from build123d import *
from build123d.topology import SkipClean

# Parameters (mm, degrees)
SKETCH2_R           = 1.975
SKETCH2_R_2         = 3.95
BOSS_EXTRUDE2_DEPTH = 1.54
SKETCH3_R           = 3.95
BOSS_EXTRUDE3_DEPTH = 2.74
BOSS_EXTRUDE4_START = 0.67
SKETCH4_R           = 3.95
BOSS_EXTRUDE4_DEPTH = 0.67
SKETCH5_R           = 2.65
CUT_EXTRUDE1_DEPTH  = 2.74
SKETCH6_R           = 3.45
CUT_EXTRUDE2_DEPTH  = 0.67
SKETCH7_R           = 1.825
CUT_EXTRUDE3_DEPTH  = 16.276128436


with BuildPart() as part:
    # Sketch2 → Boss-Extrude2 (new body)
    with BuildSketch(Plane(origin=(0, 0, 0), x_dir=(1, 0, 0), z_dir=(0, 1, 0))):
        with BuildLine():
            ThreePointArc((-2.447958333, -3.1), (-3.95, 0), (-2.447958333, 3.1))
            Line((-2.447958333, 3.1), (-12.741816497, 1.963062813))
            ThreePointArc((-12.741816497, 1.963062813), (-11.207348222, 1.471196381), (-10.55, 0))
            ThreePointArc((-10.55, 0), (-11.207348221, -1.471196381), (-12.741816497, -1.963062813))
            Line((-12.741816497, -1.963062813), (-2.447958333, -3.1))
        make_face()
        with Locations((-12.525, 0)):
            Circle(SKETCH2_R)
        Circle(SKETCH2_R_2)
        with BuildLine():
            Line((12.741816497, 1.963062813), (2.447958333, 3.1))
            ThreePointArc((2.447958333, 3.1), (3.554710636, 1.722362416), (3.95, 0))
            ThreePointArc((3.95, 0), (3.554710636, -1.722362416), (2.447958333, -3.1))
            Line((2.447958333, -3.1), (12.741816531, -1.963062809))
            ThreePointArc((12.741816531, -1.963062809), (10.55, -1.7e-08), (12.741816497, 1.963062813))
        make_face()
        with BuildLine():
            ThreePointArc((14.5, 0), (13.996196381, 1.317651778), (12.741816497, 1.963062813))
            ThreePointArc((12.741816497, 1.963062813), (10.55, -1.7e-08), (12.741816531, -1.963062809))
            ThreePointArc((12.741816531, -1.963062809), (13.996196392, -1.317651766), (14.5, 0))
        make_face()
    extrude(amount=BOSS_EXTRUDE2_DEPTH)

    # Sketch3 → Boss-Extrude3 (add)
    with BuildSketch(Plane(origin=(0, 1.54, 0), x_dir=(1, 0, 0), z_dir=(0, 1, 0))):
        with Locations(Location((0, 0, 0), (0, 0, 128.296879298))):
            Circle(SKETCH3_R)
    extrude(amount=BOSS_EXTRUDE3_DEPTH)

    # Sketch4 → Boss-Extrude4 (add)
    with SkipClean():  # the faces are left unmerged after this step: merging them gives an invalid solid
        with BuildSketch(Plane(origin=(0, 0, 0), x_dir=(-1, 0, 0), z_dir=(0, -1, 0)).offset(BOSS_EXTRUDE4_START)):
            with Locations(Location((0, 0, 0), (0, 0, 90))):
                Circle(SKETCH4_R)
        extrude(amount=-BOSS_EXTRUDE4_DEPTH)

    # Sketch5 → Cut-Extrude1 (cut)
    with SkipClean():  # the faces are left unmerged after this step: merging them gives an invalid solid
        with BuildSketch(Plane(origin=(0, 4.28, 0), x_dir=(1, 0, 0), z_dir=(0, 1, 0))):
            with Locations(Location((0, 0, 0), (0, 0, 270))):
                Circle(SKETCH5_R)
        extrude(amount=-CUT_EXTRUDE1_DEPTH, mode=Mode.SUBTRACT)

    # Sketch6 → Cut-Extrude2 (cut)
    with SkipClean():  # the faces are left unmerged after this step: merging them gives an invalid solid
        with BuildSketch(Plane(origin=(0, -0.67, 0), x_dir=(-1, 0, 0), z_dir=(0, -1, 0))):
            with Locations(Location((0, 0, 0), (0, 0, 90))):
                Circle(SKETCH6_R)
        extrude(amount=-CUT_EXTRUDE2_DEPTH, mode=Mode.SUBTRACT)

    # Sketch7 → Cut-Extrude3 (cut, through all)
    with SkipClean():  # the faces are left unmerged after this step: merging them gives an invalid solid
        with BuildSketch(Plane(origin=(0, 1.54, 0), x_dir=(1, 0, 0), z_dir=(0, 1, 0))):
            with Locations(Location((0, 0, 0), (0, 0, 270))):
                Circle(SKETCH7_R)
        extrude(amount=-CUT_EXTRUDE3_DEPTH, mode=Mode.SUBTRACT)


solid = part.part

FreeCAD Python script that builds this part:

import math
import FreeCAD as App
import Part
import Sketcher

V = App.Vector

doc = App.newDocument("Part")
params = doc.addObject("Spreadsheet::Sheet", "Params")
for row, (alias, value) in enumerate([
    ("sketch1_radius", "3.95 mm"),
    ("pad1_length", "1.54 mm"),
    ("sketch2_diameter", "7.9 mm"),
    ("pad2_length", "2.74 mm"),
    ("sketch3_diameter", "7.9 mm"),
    ("pad3_length", "0.67 mm"),
    ("sketch4_diameter", "5.3 mm"),
    ("pocket1_length", "2.74 mm"),
    ("sketch5_diameter", "6.9 mm"),
    ("pocket2_length", "0.67 mm"),
    ("sketch6_diameter", "3.65 mm"),
], start=1):
    params.set(f"A{row}", alias)
    params.set(f"B{row}", "=" + value)
    params.setAlias(f"B{row}", alias)

body = doc.addObject("PartDesign::Body", "Body")

sketch1 = body.newObject("Sketcher::SketchObject", "Sketch")
sketch1.AttachmentSupport = (doc.getObject("XZ_Plane"), [""])
sketch1.MapMode = "FlatFace"
sketch1.addGeometry([
    Part.LineSegment(V(-2.4, -3.1, 0), V(-12.7, -2, 0)),
    Part.ArcOfCircle(Part.Circle(V(-12.5, 0, 0), V(0, 0, 1), 2), math.radians(96), math.radians(264)),
    Part.LineSegment(V(-12.7, 2, 0), V(-2.4, 3.1, 0)),
    Part.ArcOfCircle(Part.Circle(V(0, 0, 0), V(0, 0, 1), 4), math.radians(52), math.radians(128)),
    Part.LineSegment(V(2.4, 3.1, 0), V(12.7, 2, 0)),
    Part.ArcOfCircle(Part.Circle(V(12.5, 0, 0), V(0, 0, 1), 2), math.radians(0), math.radians(84)),
    Part.ArcOfCircle(Part.Circle(V(12.5, 0, 0), V(0, 0, 1), 2), math.radians(-84), math.radians(0)),
    Part.LineSegment(V(12.7, -2, 0), V(2.4, -3.1, 0)),
    Part.ArcOfCircle(Part.Circle(V(0, 0, 0), V(0, 0, 1), 4), math.radians(-128), math.radians(-52)),
], False)
sketch1.addConstraint([
    Sketcher.Constraint("Tangent", 0, 2, 1, 2),
    Sketcher.Constraint("Tangent", 1, 1, 2, 1),
    Sketcher.Constraint("Coincident", 2, 2, 3, 2),
    Sketcher.Constraint("Coincident", 3, 1, 4, 1),
    Sketcher.Constraint("Tangent", 4, 2, 5, 2),
    Sketcher.Constraint("Tangent", 5, 1, 6, 2),
    Sketcher.Constraint("Tangent", 6, 1, 7, 1),
    Sketcher.Constraint("Coincident", 7, 2, 8, 2),
    Sketcher.Constraint("Coincident", 8, 1, 0, 1),
    Sketcher.Constraint("Coincident", 3, 3, -1, 1),
    Sketcher.Constraint("Coincident", 8, 3, -1, 1),
    Sketcher.Constraint("Equal", 1, 5),
    Sketcher.Constraint("Equal", 5, 6),
    Sketcher.Constraint("Equal", 3, 8),
    Sketcher.Constraint("Symmetric", 1, 3, 5, 3, -1, 1),
    Sketcher.Constraint("Symmetric", 1, 1, 4, 2, -2),
    Sketcher.Constraint("PointOnObject", 5, 1, -1),
    Sketcher.Constraint("Parallel", 0, 4),
    Sketcher.Constraint("Parallel", 2, 7),
    Sketcher.Constraint("Radius", 3, 3.95),
    Sketcher.Constraint("Radius", 1, 1.975),
    Sketcher.Constraint("DistanceY", -1, 1, 2, 2, 3.1),
    Sketcher.Constraint("DistanceX", -1, 1, 5, 1, 14.5),
])
sketch1.setExpression("Constraints[19]", "Params.sketch1_radius")
pad1 = body.newObject("PartDesign::Pad", "Pad")
pad1.Profile = sketch1
pad1.setExpression("Length", "Params.pad1_length")
pad1.Reversed = True

sketch2 = body.newObject("Sketcher::SketchObject", "Sketch001")
sketch2.AttachmentSupport = (doc.getObject("XZ_Plane"), [""])
sketch2.MapMode = "FlatFace"
sketch2.AttachmentOffset = App.Placement(V(0, 0, -1.54), App.Rotation())
sketch2.addGeometry(Part.Circle(V(0, 0, 0), V(0, 0, 1), 4), False)
sketch2.addConstraint([
    Sketcher.Constraint("Coincident", 0, 3, -1, 1),
    Sketcher.Constraint("Diameter", 0, 7.9),
])
sketch2.setExpression("Constraints[1]", "Params.sketch2_diameter")
pad2 = body.newObject("PartDesign::Pad", "Pad001")
pad2.Profile = sketch2
pad2.setExpression("Length", "Params.pad2_length")
pad2.Reversed = True

sketch3 = body.newObject("Sketcher::SketchObject", "Sketch002")
sketch3.AttachmentSupport = (doc.getObject("XZ_Plane"), [""])
sketch3.MapMode = "FlatFace"
sketch3.AttachmentOffset = App.Placement(V(0, 0, 0.67), App.Rotation())
sketch3.addGeometry(Part.Circle(V(0, 0, 0), V(0, 0, 1), 4), False)
sketch3.addConstraint([
    Sketcher.Constraint("Coincident", 0, 3, -1, 1),
    Sketcher.Constraint("Diameter", 0, 7.9),
])
sketch3.setExpression("Constraints[1]", "Params.sketch3_diameter")
pad3 = body.newObject("PartDesign::Pad", "Pad002")
pad3.Profile = sketch3
pad3.setExpression("Length", "Params.pad3_length")
pad3.Reversed = True

sketch4 = body.newObject("Sketcher::SketchObject", "Sketch003")
sketch4.AttachmentSupport = (doc.getObject("XZ_Plane"), [""])
sketch4.MapMode = "FlatFace"
sketch4.AttachmentOffset = App.Placement(V(0, 0, -4.28), App.Rotation())
sketch4.addGeometry(Part.Circle(V(0, 0, 0), V(0, 0, 1), 2.6), False)
sketch4.addConstraint([
    Sketcher.Constraint("Coincident", 0, 3, -1, 1),
    Sketcher.Constraint("Diameter", 0, 5.3),
])
sketch4.setExpression("Constraints[1]", "Params.sketch4_diameter")
pocket1 = body.newObject("PartDesign::Pocket", "Pocket")
pocket1.Profile = sketch4
pocket1.setExpression("Length", "Params.pocket1_length")
pocket1.Reversed = True

sketch5 = body.newObject("Sketcher::SketchObject", "Sketch004")
sketch5.AttachmentSupport = (doc.getObject("XZ_Plane"), [""])
sketch5.MapMode = "FlatFace"
sketch5.AttachmentOffset = App.Placement(V(0, 0, 0.67), App.Rotation())
sketch5.addGeometry(Part.Circle(V(0, 0, 0), V(0, 0, 1), 3.5), False)
sketch5.addConstraint([
    Sketcher.Constraint("Coincident", 0, 3, -1, 1),
    Sketcher.Constraint("Diameter", 0, 6.9),
])
sketch5.setExpression("Constraints[1]", "Params.sketch5_diameter")
pocket2 = body.newObject("PartDesign::Pocket", "Pocket001")
pocket2.Profile = sketch5
pocket2.setExpression("Length", "Params.pocket2_length")

sketch6 = body.newObject("Sketcher::SketchObject", "Sketch005")
sketch6.AttachmentSupport = (doc.getObject("XZ_Plane"), [""])
sketch6.MapMode = "FlatFace"
sketch6.AttachmentOffset = App.Placement(V(0, 0, -1.54), App.Rotation())
sketch6.addGeometry(Part.Circle(V(0, 0, 0), V(0, 0, 1), 1.8), False)
sketch6.addConstraint([
    Sketcher.Constraint("Coincident", 0, 3, -1, 1),
    Sketcher.Constraint("Diameter", 0, 3.65),
])
sketch6.setExpression("Constraints[1]", "Params.sketch6_diameter")
pocket3 = body.newObject("PartDesign::Pocket", "Pocket002")
pocket3.Profile = sketch6
pocket3.Type = "ThroughAll"
pocket3.Reversed = True

doc.recompute()
